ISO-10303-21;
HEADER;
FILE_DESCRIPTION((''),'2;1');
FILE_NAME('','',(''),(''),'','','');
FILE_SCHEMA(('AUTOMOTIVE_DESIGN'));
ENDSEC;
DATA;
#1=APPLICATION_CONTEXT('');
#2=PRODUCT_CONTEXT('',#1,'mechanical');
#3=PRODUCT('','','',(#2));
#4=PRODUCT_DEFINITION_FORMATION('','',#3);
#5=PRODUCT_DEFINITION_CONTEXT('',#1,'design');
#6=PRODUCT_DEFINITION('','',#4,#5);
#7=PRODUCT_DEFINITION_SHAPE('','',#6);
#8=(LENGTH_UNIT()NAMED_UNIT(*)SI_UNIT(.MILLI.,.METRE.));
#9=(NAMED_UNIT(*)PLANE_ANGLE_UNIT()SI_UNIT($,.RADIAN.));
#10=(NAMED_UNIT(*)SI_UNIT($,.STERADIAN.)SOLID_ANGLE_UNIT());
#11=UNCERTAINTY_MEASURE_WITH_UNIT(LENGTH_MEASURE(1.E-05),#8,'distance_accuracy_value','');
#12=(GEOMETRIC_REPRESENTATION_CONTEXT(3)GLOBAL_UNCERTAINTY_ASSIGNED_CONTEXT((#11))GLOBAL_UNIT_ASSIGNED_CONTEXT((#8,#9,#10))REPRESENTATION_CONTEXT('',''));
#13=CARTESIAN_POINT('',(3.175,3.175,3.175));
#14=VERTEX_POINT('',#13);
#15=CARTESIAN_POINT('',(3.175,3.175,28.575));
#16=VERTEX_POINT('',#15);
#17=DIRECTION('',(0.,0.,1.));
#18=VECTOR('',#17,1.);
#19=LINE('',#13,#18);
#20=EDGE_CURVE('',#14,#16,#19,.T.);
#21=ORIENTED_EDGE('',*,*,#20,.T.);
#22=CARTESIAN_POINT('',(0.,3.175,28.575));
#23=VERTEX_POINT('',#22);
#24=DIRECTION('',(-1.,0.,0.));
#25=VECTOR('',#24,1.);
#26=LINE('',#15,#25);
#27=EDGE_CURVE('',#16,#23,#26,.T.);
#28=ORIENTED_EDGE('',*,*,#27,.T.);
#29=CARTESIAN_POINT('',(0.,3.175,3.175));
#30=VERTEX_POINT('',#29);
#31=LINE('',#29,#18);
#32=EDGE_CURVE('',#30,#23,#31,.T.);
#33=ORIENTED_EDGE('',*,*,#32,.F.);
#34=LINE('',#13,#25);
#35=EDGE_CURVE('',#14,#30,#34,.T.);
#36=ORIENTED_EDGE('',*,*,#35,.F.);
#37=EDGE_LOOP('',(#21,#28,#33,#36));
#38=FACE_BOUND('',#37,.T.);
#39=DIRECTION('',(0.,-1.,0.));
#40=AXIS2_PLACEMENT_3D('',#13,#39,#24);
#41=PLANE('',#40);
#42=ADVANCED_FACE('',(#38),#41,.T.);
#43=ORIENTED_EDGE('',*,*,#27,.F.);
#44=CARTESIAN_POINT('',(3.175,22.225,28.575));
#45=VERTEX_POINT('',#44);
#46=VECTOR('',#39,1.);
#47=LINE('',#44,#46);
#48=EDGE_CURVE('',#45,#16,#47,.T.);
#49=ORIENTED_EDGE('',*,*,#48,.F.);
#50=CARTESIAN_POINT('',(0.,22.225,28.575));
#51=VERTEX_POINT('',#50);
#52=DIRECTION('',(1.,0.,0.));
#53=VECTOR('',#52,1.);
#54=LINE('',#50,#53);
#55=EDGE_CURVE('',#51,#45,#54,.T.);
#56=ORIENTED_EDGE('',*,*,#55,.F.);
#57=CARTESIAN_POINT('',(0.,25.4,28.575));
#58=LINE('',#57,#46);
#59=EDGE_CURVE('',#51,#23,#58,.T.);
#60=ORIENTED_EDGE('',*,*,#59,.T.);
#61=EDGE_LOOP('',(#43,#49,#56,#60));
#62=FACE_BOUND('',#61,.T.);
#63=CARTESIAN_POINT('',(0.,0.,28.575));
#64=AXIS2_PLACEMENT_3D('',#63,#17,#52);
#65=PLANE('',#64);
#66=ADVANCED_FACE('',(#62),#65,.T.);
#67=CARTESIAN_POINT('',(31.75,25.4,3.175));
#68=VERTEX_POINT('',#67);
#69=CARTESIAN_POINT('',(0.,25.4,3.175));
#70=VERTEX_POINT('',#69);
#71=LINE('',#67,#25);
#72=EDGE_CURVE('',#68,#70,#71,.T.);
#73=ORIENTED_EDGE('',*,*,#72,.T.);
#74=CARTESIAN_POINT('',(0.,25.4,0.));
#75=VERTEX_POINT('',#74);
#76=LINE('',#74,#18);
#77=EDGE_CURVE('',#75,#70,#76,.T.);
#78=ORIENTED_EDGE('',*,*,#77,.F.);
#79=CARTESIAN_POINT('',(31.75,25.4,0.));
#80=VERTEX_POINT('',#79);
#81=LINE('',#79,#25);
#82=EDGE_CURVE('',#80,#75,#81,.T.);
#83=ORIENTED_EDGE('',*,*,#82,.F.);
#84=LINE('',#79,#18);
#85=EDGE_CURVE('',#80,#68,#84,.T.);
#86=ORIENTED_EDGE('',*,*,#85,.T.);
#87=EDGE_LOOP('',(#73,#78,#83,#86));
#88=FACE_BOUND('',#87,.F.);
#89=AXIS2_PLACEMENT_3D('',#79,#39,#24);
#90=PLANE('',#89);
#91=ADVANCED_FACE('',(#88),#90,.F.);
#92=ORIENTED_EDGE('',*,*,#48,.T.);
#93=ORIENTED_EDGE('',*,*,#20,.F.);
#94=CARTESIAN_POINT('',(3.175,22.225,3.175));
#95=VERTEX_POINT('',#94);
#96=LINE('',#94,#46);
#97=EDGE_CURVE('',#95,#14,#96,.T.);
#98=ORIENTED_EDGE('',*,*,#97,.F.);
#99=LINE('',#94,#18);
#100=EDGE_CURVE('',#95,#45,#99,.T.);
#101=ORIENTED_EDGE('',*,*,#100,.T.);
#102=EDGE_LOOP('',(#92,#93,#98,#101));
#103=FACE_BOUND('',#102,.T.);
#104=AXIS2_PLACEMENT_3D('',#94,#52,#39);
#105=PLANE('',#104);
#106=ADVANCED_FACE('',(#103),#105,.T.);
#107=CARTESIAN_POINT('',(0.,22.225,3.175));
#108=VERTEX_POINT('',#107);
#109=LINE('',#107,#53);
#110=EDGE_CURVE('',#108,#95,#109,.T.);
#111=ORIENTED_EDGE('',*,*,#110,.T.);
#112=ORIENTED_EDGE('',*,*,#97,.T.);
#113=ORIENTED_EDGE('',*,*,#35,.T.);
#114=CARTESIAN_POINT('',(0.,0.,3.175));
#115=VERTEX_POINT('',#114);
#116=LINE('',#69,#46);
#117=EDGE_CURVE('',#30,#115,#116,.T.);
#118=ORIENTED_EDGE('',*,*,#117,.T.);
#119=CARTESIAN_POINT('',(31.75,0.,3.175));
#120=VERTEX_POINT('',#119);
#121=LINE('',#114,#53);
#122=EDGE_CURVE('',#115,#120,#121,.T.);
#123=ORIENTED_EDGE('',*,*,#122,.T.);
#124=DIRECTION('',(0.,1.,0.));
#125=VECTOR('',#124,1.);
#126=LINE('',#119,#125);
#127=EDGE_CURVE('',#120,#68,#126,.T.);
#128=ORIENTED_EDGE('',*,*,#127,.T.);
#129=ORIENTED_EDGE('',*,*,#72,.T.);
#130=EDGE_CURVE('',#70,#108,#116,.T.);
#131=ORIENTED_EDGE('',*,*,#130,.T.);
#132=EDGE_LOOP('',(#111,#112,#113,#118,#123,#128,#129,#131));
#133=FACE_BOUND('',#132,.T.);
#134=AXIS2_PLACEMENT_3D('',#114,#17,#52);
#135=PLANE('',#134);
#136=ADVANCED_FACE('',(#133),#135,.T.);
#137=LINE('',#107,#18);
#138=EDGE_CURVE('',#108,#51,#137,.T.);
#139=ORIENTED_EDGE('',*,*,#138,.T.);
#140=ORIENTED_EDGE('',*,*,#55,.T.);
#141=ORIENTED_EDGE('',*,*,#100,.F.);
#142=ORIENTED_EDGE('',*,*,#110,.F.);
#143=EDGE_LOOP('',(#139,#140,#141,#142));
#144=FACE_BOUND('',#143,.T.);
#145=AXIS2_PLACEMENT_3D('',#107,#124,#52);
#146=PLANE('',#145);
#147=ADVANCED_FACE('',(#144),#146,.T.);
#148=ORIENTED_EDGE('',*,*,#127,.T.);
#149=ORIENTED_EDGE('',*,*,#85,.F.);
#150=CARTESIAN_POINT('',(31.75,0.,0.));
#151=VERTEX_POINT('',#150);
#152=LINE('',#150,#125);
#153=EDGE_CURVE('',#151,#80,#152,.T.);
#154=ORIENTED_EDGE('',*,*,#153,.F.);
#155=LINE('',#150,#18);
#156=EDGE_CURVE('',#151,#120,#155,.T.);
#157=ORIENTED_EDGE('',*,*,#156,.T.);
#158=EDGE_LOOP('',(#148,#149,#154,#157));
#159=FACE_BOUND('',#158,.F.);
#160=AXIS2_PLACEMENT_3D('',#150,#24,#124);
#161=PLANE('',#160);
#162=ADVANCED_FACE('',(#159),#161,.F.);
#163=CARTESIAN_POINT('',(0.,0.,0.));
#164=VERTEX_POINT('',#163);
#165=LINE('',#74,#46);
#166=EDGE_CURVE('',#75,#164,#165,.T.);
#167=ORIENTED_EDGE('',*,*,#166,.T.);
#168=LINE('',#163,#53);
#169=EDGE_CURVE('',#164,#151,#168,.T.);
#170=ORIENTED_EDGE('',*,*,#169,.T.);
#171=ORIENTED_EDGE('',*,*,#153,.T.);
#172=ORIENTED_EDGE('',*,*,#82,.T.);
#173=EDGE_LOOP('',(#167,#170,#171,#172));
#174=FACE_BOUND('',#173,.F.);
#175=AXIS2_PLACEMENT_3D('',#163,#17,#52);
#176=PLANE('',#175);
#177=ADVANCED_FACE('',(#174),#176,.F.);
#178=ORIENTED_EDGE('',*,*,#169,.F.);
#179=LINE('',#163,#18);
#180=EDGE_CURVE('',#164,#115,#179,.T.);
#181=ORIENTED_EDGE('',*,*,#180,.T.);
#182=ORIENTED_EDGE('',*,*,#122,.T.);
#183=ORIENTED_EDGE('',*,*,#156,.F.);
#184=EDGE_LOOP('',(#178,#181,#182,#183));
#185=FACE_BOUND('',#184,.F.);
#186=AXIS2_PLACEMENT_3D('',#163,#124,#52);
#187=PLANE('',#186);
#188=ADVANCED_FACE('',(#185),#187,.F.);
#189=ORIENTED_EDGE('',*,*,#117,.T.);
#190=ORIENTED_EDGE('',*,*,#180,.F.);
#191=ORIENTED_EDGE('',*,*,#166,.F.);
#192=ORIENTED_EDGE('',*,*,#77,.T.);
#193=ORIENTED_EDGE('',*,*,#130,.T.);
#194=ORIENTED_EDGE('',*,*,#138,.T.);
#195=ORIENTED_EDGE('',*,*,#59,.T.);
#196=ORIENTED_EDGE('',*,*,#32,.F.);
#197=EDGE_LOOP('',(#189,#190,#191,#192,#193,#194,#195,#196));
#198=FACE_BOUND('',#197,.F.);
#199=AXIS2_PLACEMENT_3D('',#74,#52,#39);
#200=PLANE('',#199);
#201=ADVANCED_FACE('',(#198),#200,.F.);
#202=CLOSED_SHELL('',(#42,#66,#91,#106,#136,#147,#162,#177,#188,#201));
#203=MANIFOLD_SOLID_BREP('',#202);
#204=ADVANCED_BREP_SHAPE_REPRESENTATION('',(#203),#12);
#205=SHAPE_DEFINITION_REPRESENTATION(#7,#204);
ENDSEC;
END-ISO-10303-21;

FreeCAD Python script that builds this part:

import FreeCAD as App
import Part
import Sketcher
from FreeCAD import Vector
Q = App.Units.Quantity


def add_polygon(sketch, points):
    """Adds a closed chain of lines whose ends are joined by coincident constraints."""
    first, n = sketch.GeometryCount, len(points)
    for a, b in zip(points, points[1:] + points[:1]):
        sketch.addGeometry(Part.LineSegment(App.Vector(*a, 0), App.Vector(*b, 0)), False)
    for i in range(n):
        sketch.addConstraint(Sketcher.Constraint("Coincident", first + i, 2, first + (i + 1) % n, 1))

doc = App.newDocument("Part")
params = doc.addObject("Spreadsheet::Sheet", "Params")
for row, (alias, value) in enumerate([
    ("sketch1_height", "1 in"),
    ("sketch1_width", "1.25 in"),
    ("pad1_length", "0.125 in"),
    ("sketch2_height", "0.75 in"),
    ("sketch2_width", "0.125 in"),
    ("pad2_length", "1 in"),
], start=1):
    params.set(f"A{row}", alias)
    params.set(f"B{row}", "=" + value)
    params.setAlias(f"B{row}", alias)

body = doc.addObject("PartDesign::Body", "Body")

# Sketch on XY plane
sketch1 = body.newObject("Sketcher::SketchObject", "Sketch")
sketch1.AttachmentSupport = (doc.getObject("XY_Plane"), [""])
sketch1.MapMode = "FlatFace"
add_polygon(sketch1, [(0, 25), (0, 0), (32, 0), (32, 25)])  # lines 0-3
sketch1.addConstraint([
    Sketcher.Constraint("Vertical", 0),
    Sketcher.Constraint("Horizontal", 1),
    Sketcher.Constraint("Vertical", 2),
    Sketcher.Constraint("Horizontal", 3),
    Sketcher.Constraint("Coincident", 0, 2, -1, 1),
    Sketcher.Constraint("DistanceY", 0, 2, 0, 1, Q("1 in")),
    Sketcher.Constraint("DistanceX", 1, 1, 1, 2, Q("1.25 in")),
])
sketch1.setExpression("Constraints[9]", "Params.sketch1_height")
sketch1.setExpression("Constraints[10]", "Params.sketch1_width")
pad1 = body.newObject("PartDesign::Pad", "Pad")
pad1.Profile = sketch1
pad1.setExpression("Length", "Params.pad1_length")

# Sketch on XY plane
sketch2 = body.newObject("Sketcher::SketchObject", "Sketch001")
sketch2.AttachmentSupport = (doc.getObject("XY_Plane"), [""])
sketch2.MapMode = "FlatFace"
sketch2.AttachmentOffset = App.Placement(Vector(0, 0, 0.125 * 25.4), App.Rotation())
add_polygon(sketch2, [(3.2, 22.2), (0, 22.2), (0, 3.2), (3.2, 3.2)])  # lines 0-3
sketch2.addConstraint([
    Sketcher.Constraint("Horizontal", 0),
    Sketcher.Constraint("Vertical", 1),
    Sketcher.Constraint("Horizontal", 2),
    Sketcher.Constraint("Vertical", 3),
    Sketcher.Constraint("PointOnObject", 0, 2, -2),
    Sketcher.Constraint("DistanceY", 1, 2, 1, 1, Q("0.75 in")),
    Sketcher.Constraint("DistanceX", 0, 2, 0, 1, Q("0.125 in")),
    Sketcher.Constraint("DistanceY", -1, 1, 1, 2, Q("0.125 in")),
])
sketch2.setExpression("Constraints[9]", "Params.sketch2_height")
sketch2.setExpression("Constraints[10]", "Params.sketch2_width")
pad2 = body.newObject("PartDesign::Pad", "Pad001")
pad2.Profile = sketch2
pad2.setExpression("Length", "Params.pad2_length")

doc.recompute()
